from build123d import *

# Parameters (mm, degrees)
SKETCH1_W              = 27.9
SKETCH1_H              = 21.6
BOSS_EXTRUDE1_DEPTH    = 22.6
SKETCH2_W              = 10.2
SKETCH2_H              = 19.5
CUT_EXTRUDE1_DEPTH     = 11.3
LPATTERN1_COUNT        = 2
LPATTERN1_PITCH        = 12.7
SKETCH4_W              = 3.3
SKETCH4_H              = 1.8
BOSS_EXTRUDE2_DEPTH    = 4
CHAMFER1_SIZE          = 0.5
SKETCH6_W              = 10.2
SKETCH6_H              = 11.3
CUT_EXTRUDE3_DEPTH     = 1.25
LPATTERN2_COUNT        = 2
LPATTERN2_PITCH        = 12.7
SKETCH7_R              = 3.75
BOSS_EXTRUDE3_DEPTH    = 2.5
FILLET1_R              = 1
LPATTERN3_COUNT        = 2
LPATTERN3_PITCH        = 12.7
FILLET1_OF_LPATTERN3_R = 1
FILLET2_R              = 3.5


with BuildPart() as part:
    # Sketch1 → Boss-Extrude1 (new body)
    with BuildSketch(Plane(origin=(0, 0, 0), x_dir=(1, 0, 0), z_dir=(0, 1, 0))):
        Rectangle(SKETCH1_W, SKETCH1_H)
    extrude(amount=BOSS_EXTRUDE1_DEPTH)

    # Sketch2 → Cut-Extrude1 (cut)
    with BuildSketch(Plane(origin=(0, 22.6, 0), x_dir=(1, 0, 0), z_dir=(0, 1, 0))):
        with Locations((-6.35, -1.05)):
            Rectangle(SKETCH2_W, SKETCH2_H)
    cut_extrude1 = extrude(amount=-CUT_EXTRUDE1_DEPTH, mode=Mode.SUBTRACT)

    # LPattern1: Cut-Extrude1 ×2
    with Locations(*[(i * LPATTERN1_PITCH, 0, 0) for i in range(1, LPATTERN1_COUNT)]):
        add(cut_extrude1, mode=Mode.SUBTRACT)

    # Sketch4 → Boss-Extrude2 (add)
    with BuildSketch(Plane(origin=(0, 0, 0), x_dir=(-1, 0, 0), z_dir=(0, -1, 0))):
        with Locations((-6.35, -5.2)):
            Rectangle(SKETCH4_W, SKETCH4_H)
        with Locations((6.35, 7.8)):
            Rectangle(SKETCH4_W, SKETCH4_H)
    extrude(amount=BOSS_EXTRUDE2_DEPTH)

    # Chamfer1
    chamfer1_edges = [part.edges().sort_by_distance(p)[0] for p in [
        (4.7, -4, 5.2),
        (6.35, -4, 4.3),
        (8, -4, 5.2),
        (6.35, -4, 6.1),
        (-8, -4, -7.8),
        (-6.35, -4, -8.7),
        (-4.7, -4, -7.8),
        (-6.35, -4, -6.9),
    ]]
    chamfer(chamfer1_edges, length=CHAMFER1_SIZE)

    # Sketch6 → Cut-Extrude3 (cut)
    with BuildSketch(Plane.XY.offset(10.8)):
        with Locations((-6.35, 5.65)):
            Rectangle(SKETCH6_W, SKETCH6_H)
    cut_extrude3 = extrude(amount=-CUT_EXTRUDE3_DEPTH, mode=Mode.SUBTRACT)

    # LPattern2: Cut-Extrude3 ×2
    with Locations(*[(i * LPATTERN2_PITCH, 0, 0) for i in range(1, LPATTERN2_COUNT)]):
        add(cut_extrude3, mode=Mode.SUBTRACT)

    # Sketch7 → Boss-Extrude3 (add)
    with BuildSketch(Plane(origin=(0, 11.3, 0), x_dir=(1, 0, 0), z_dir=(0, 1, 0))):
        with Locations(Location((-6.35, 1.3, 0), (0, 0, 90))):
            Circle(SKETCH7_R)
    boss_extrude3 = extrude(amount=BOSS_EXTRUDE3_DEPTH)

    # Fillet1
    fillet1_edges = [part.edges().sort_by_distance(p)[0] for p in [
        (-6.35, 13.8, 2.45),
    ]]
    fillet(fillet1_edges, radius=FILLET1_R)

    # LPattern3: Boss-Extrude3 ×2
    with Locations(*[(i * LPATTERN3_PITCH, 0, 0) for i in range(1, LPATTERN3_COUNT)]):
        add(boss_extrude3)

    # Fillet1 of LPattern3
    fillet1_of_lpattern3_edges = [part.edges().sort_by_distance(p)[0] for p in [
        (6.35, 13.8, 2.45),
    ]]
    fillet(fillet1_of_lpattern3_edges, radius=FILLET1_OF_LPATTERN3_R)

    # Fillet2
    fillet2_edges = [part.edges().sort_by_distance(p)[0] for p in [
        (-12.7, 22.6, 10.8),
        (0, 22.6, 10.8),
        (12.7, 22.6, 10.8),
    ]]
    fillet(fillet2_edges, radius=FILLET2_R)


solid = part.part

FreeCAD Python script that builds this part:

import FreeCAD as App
import Part
import Sketcher
Q = App.Units.Quantity


def edges_at(feature, points):
    """Names of the edges that pass closest to the given points."""
    edges = feature.Shape.Edges
    near = lambda p: min(range(len(edges)), key=lambda i: edges[i].distToShape(Part.Vertex(*p))[0])
    return sorted({f"Edge{near(p) + 1}" for p in points})

doc = App.newDocument("Part")
body = doc.addObject("PartDesign::Body", "Body")

# Sketch on XZ plane
sketch1 = body.newObject("Sketcher::SketchObject", "Sketch")
sketch1.AttachmentSupport = (doc.getObject("XZ_Plane"), [""])
sketch1.MapMode = "FlatFace"
sketch1.addGeometry([
    Part.LineSegment(App.Vector(-13.95, -10.8, 0), App.Vector(-13.95, 10.8, 0)),
    Part.LineSegment(App.Vector(-13.95, 10.8, 0), App.Vector(13.95, 10.8, 0)),
    Part.LineSegment(App.Vector(13.95, 10.8, 0), App.Vector(13.95, -10.8, 0)),
    Part.LineSegment(App.Vector(13.95, -10.8, 0), App.Vector(-13.95, -10.8, 0)),
], False)
sketch1.addConstraint([
    Sketcher.Constraint("Coincident", 0, 2, 1, 1),
    Sketcher.Constraint("Coincident", 1, 2, 2, 1),
    Sketcher.Constraint("Coincident", 2, 2, 3, 1),
    Sketcher.Constraint("Coincident", 3, 2, 0, 1),
    Sketcher.Constraint("Vertical", 0),
    Sketcher.Constraint("Horizontal", 1),
    Sketcher.Constraint("Vertical", 2),
    Sketcher.Constraint("Horizontal", 3),
    Sketcher.Constraint("Symmetric", 0, 2, 2, 2, -1, 1),
    Sketcher.Constraint("DistanceX", 1, 1, 1, 2, Q("27.9 mm")),
    Sketcher.Constraint("DistanceY", 0, 1, 0, 2, Q("21.6 mm")),
])
pad1 = body.newObject("PartDesign::Pad", "Pad")
pad1.Profile = sketch1
pad1.Length = 22.6
pad1.Reversed = True

# Sketch on XZ plane
sketch2 = body.newObject("Sketcher::SketchObject", "Sketch001")
sketch2.AttachmentSupport = (doc.getObject("XZ_Plane"), [""])
sketch2.MapMode = "FlatFace"
sketch2.AttachmentOffset = App.Placement(App.Vector(0, 0, -22.6), App.Rotation())
sketch2.addGeometry([
    Part.LineSegment(App.Vector(-11.45, -8.7, 0), App.Vector(-11.45, 10.8, 0)),
    Part.LineSegment(App.Vector(-11.45, 10.8, 0), App.Vector(-1.25, 10.8, 0)),
    Part.LineSegment(App.Vector(-1.25, 10.8, 0), App.Vector(-1.25, -8.7, 0)),
    Part.LineSegment(App.Vector(-1.25, -8.7, 0), App.Vector(-11.45, -8.7, 0)),
], False)
sketch2.addConstraint([
    Sketcher.Constraint("Coincident", 0, 2, 1, 1),
    Sketcher.Constraint("Coincident", 1, 2, 2, 1),
    Sketcher.Constraint("Coincident", 2, 2, 3, 1),
    Sketcher.Constraint("Coincident", 3, 2, 0, 1),
    Sketcher.Constraint("Vertical", 0),
    Sketcher.Constraint("Horizontal", 1),
    Sketcher.Constraint("Vertical", 2),
    Sketcher.Constraint("Horizontal", 3),
    Sketcher.Constraint("DistanceX", 1, 1, 1, 2, Q("10.2 mm")),
    Sketcher.Constraint("DistanceY", 0, 1, 0, 2, Q("19.5 mm")),
    Sketcher.Constraint("DistanceY", -1, 1, 0, 2, Q("10.8 mm")),
    Sketcher.Constraint("DistanceX", 0, 2, -1, 1, Q("11.45 mm")),
])
pocket1 = body.newObject("PartDesign::Pocket", "Pocket")
pocket1.Profile = sketch2
pocket1.Length = 11.3
pocket1.Reversed = True
doc.recompute()

linearpattern = body.newObject("PartDesign::LinearPattern", "LinearPattern")
linearpattern.Originals = [pocket1]
linearpattern.Direction = (doc.getObject("X_Axis"), [""])
linearpattern.Mode = "offset"
linearpattern.Offset = 12.7
linearpattern.Occurrences = 2
body.Tip = linearpattern

# Sketch on XZ plane
sketch3 = body.newObject("Sketcher::SketchObject", "Sketch002")
sketch3.AttachmentSupport = (doc.getObject("XZ_Plane"), [""])
sketch3.MapMode = "FlatFace"
sketch3.addGeometry([
    Part.LineSegment(App.Vector(8, 4.3, 0), App.Vector(8, 6.1, 0)),  # 0
    Part.LineSegment(App.Vector(8, 6.1, 0), App.Vector(4.7, 6.1, 0)),  # 1
    Part.LineSegment(App.Vector(4.7, 6.1, 0), App.Vector(4.7, 4.3, 0)),  # 2
    Part.LineSegment(App.Vector(4.7, 4.3, 0), App.Vector(8, 4.3, 0)),  # 3
    Part.LineSegment(App.Vector(-4.7, -8.7, 0), App.Vector(-4.7, -6.9, 0)),  # 4
    Part.LineSegment(App.Vector(-4.7, -6.9, 0), App.Vector(-8, -6.9, 0)),  # 5
    Part.LineSegment(App.Vector(-8, -6.9, 0), App.Vector(-8, -8.7, 0)),  # 6
    Part.LineSegment(App.Vector(-8, -8.7, 0), App.Vector(-4.7, -8.7, 0)),  # 7
], False)
sketch3.addConstraint([
    Sketcher.Constraint("Coincident", 0, 2, 1, 1),
    Sketcher.Constraint("Coincident", 1, 2, 2, 1),
    Sketcher.Constraint("Coincident", 2, 2, 3, 1),
    Sketcher.Constraint("Coincident", 3, 2, 0, 1),
    Sketcher.Constraint("Coincident", 4, 2, 5, 1),
    Sketcher.Constraint("Coincident", 5, 2, 6, 1),
    Sketcher.Constraint("Coincident", 6, 2, 7, 1),
    Sketcher.Constraint("Coincident", 7, 2, 4, 1),
    Sketcher.Constraint("Vertical", 0),
    Sketcher.Constraint("Horizontal", 1),
    Sketcher.Constraint("Vertical", 2),
    Sketcher.Constraint("Horizontal", 3),
    Sketcher.Constraint("Vertical", 4),
    Sketcher.Constraint("Horizontal", 5),
    Sketcher.Constraint("Vertical", 6),
    Sketcher.Constraint("Horizontal", 7),
    Sketcher.Constraint("Equal", 3, 5),
    Sketcher.Constraint("Equal", 2, 4),
    Sketcher.Constraint("DistanceX", 1, 2, 1, 1, Q("3.3 mm")),
    Sketcher.Constraint("DistanceY", 0, 1, 0, 2, Q("1.8 mm")),
    Sketcher.Constraint("DistanceX", -1, 1, 0, 2, Q("8 mm")),
    Sketcher.Constraint("DistanceX", 5, 2, -1, 1, Q("8 mm")),
    Sketcher.Constraint("DistanceY", 4, 2, 1, 2, Q("13 mm")),
    Sketcher.Constraint("DistanceY", -1, 1, 0, 2, Q("6.1 mm")),
])
pad2 = body.newObject("PartDesign::Pad", "Pad001")
pad2.Profile = sketch3
pad2.Length = 4
doc.recompute()

chamfer = body.newObject("PartDesign::Chamfer", "Chamfer")
chamfer.Base = (pad2, edges_at(pad2, [
    (4.7, -4, 5.2),
    (6.35, -4, 4.3),
    (8, -4, 5.2),
    (6.35, -4, 6.1),
    (-8, -4, -7.8),
    (-6.35, -4, -8.7),
    (-4.7, -4, -7.8),
    (-6.35, -4, -6.9),
]))
chamfer.Size = 0.5

# Sketch on XY plane
sketch4 = body.newObject("Sketcher::SketchObject", "Sketch003")
sketch4.AttachmentSupport = (doc.getObject("XY_Plane"), [""])
sketch4.MapMode = "FlatFace"
sketch4.AttachmentOffset = App.Placement(App.Vector(0, 0, 10.8), App.Rotation())
sketch4.addGeometry([
    Part.LineSegment(App.Vector(-11.45, 11.3, 0), App.Vector(-11.45, 0, 0)),
    Part.LineSegment(App.Vector(-11.45, 0, 0), App.Vector(-1.25, 0, 0)),
    Part.LineSegment(App.Vector(-1.25, 0, 0), App.Vector(-1.25, 11.3, 0)),
    Part.LineSegment(App.Vector(-1.25, 11.3, 0), App.Vector(-11.45, 11.3, 0)),
], False)
sketch4.addConstraint([
    Sketcher.Constraint("Coincident", 0, 2, 1, 1),
    Sketcher.Constraint("Coincident", 1, 2, 2, 1),
    Sketcher.Constraint("Coincident", 2, 2, 3, 1),
    Sketcher.Constraint("Coincident", 3, 2, 0, 1),
    Sketcher.Constraint("Vertical", 0),
    Sketcher.Constraint("Horizontal", 1),
    Sketcher.Constraint("Vertical", 2),
    Sketcher.Constraint("Horizontal", 3),
    Sketcher.Constraint("PointOnObject", 0, 2, -1),
    Sketcher.Constraint("DistanceX", 1, 1, 1, 2, Q("10.2 mm")),
    Sketcher.Constraint("DistanceY", 0, 2, 0, 1, Q("11.3 mm")),
    Sketcher.Constraint("DistanceX", 0, 2, -1, 1, Q("11.45 mm")),
])
pocket2 = body.newObject("PartDesign::Pocket", "Pocket001")
pocket2.Profile = sketch4
pocket2.Length = 1.25
doc.recompute()

linearpattern2 = body.newObject("PartDesign::LinearPattern", "LinearPattern001")
linearpattern2.Originals = [pocket2]
linearpattern2.Direction = (doc.getObject("X_Axis"), [""])
linearpattern2.Mode = "offset"
linearpattern2.Offset = 12.7
linearpattern2.Occurrences = 2
body.Tip = linearpattern2

# Sketch on XZ plane
sketch5 = body.newObject("Sketcher::SketchObject", "Sketch004")
sketch5.AttachmentSupport = (doc.getObject("XZ_Plane"), [""])
sketch5.MapMode = "FlatFace"
sketch5.AttachmentOffset = App.Placement(App.Vector(0, 0, -11.3), App.Rotation())
sketch5.addGeometry(Part.Circle(App.Vector(-6.35, -1.3, 0), App.Vector(0, 0, 1), 3.75), False)
sketch5.addConstraint([
    Sketcher.Constraint("Diameter", 0, Q("7.5 mm")),
    Sketcher.Constraint("DistanceY", 0, 3, -1, 1, Q("1.3 mm")),
    Sketcher.Constraint("DistanceX", 0, 3, -1, 1, Q("6.35 mm")),
])
pad3 = body.newObject("PartDesign::Pad", "Pad002")
pad3.Profile = sketch5
pad3.Length = 2.5
pad3.Reversed = True
doc.recompute()

fillet = body.newObject("PartDesign::Fillet", "Fillet")
fillet.Base = (pad3, edges_at(pad3, [(-6.35, 13.8, 2.45)]))
fillet.Radius = 1
doc.recompute()

linearpattern3 = body.newObject("PartDesign::LinearPattern", "LinearPattern002")
linearpattern3.Originals = [pad3]
linearpattern3.Direction = (doc.getObject("X_Axis"), [""])
linearpattern3.Mode = "offset"
linearpattern3.Offset = 12.7
linearpattern3.Occurrences = 2
body.Tip = linearpattern3
doc.recompute()

fillet2 = body.newObject("PartDesign::Fillet", "Fillet001")
fillet2.Base = (linearpattern3, edges_at(linearpattern3, [(6.35, 13.8, 2.45)]))
fillet2.Radius = 1
doc.recompute()

fillet3 = body.newObject("PartDesign::Fillet", "Fillet002")
fillet3.Base = (fillet2, edges_at(fillet2, [(-12.7, 22.6, 10.8), (0, 22.6, 10.8), (12.7, 22.6, 10.8)]))
fillet3.Radius = 3.5

doc.recompute()
